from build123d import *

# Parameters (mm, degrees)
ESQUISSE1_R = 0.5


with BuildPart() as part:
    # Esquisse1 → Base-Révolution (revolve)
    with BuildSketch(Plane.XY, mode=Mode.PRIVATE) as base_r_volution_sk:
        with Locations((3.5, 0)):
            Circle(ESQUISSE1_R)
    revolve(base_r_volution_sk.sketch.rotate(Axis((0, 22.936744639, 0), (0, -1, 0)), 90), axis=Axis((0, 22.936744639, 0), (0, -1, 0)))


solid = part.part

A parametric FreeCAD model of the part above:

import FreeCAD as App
import Part
import Sketcher
from FreeCAD import Vector
Q = App.Units.Quantity

doc = App.newDocument("Part")
body = doc.addObject("PartDesign::Body", "Body")

sketch1 = body.newObject("Sketcher::SketchObject", "Sketch")
sketch1.AttachmentSupport = (doc.getObject("XY_Plane"), [""])
sketch1.MapMode = "FlatFace"
sketch1.addGeometry(Part.Circle(Vector(3.5, 0, 0), Vector(0, 0, 1), 0.5), False)
sketch1.addConstraint(Sketcher.Constraint("PointOnObject", 0, 3, -1))
sketch1.addConstraint(Sketcher.Constraint("Diameter", 0, Q("1 mm")))
sketch1.addConstraint(Sketcher.Constraint("DistanceX", -1, 1, 0, 3, Q("3.5 mm")))
revolution = body.newObject("PartDesign::Revolution", "Revolution")
revolution.Profile = sketch1
revolution.ReferenceAxis = (sketch1, ["V_Axis"])
revolution.Angle = 360

doc.recompute()
